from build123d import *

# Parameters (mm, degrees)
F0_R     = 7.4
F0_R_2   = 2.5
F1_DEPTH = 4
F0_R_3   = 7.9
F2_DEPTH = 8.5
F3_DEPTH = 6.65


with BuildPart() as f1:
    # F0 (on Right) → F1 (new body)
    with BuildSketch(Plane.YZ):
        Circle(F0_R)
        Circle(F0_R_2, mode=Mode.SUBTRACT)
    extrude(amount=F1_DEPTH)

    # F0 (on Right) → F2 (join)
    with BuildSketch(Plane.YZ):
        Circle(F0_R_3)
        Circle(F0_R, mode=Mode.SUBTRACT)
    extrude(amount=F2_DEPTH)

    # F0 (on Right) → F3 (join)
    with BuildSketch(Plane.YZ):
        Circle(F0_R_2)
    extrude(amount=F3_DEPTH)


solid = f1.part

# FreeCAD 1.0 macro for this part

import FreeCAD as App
import Part
import Sketcher

doc = App.newDocument("Part")
body = doc.addObject("PartDesign::Body", "Body")

# Sketch on YZ plane
sketch1 = body.newObject("Sketcher::SketchObject", "Sketch")
sketch1.AttachmentSupport = (doc.getObject("YZ_Plane"), [""])
sketch1.MapMode = "FlatFace"
sketch1.addGeometry([
    Part.Circle(App.Vector(0, 0, 0), App.Vector(0, 0, 1), 7.4),
    Part.Circle(App.Vector(0, 0, 0), App.Vector(0, 0, 1), 2.5),
], False)
sketch1.addConstraint([
    Sketcher.Constraint("Coincident", 0, 3, -1, 1),
    Sketcher.Constraint("Coincident", 1, 3, -1, 1),
    Sketcher.Constraint("Diameter", 1, 5.0),
    Sketcher.Constraint("Diameter", 0, 14.8),
])
pad1 = body.newObject("PartDesign::Pad", "Pad")
pad1.Profile = sketch1
pad1.Length = 4

# Sketch on YZ plane
sketch2 = body.newObject("Sketcher::SketchObject", "Sketch001")
sketch2.AttachmentSupport = (doc.getObject("YZ_Plane"), [""])
sketch2.MapMode = "FlatFace"
sketch2.addGeometry([
    Part.Circle(App.Vector(0, 0, 0), App.Vector(0, 0, 1), 7.9),
    Part.Circle(App.Vector(0, 0, 0), App.Vector(0, 0, 1), 7.4),
], False)
sketch2.addConstraint([
    Sketcher.Constraint("Coincident", 0, 3, -1, 1),
    Sketcher.Constraint("Coincident", 1, 3, -1, 1),
    Sketcher.Constraint("Diameter", 0, 15.8),
    Sketcher.Constraint("Diameter", 1, 14.8),
])
pad2 = body.newObject("PartDesign::Pad", "Pad001")
pad2.Profile = sketch2
pad2.Length = 8.5

# Sketch on YZ plane
sketch3 = body.newObject("Sketcher::SketchObject", "Sketch002")
sketch3.AttachmentSupport = (doc.getObject("YZ_Plane"), [""])
sketch3.MapMode = "FlatFace"
sketch3.addGeometry(Part.Circle(App.Vector(0, 0, 0), App.Vector(0, 0, 1), 2.5), False)
sketch3.addConstraint([
    Sketcher.Constraint("Coincident", 0, 3, -1, 1),
    Sketcher.Constraint("Diameter", 0, 5.0),
])
pad3 = body.newObject("PartDesign::Pad", "Pad002")
pad3.Profile = sketch3
pad3.Length = 6.65

doc.recompute()
